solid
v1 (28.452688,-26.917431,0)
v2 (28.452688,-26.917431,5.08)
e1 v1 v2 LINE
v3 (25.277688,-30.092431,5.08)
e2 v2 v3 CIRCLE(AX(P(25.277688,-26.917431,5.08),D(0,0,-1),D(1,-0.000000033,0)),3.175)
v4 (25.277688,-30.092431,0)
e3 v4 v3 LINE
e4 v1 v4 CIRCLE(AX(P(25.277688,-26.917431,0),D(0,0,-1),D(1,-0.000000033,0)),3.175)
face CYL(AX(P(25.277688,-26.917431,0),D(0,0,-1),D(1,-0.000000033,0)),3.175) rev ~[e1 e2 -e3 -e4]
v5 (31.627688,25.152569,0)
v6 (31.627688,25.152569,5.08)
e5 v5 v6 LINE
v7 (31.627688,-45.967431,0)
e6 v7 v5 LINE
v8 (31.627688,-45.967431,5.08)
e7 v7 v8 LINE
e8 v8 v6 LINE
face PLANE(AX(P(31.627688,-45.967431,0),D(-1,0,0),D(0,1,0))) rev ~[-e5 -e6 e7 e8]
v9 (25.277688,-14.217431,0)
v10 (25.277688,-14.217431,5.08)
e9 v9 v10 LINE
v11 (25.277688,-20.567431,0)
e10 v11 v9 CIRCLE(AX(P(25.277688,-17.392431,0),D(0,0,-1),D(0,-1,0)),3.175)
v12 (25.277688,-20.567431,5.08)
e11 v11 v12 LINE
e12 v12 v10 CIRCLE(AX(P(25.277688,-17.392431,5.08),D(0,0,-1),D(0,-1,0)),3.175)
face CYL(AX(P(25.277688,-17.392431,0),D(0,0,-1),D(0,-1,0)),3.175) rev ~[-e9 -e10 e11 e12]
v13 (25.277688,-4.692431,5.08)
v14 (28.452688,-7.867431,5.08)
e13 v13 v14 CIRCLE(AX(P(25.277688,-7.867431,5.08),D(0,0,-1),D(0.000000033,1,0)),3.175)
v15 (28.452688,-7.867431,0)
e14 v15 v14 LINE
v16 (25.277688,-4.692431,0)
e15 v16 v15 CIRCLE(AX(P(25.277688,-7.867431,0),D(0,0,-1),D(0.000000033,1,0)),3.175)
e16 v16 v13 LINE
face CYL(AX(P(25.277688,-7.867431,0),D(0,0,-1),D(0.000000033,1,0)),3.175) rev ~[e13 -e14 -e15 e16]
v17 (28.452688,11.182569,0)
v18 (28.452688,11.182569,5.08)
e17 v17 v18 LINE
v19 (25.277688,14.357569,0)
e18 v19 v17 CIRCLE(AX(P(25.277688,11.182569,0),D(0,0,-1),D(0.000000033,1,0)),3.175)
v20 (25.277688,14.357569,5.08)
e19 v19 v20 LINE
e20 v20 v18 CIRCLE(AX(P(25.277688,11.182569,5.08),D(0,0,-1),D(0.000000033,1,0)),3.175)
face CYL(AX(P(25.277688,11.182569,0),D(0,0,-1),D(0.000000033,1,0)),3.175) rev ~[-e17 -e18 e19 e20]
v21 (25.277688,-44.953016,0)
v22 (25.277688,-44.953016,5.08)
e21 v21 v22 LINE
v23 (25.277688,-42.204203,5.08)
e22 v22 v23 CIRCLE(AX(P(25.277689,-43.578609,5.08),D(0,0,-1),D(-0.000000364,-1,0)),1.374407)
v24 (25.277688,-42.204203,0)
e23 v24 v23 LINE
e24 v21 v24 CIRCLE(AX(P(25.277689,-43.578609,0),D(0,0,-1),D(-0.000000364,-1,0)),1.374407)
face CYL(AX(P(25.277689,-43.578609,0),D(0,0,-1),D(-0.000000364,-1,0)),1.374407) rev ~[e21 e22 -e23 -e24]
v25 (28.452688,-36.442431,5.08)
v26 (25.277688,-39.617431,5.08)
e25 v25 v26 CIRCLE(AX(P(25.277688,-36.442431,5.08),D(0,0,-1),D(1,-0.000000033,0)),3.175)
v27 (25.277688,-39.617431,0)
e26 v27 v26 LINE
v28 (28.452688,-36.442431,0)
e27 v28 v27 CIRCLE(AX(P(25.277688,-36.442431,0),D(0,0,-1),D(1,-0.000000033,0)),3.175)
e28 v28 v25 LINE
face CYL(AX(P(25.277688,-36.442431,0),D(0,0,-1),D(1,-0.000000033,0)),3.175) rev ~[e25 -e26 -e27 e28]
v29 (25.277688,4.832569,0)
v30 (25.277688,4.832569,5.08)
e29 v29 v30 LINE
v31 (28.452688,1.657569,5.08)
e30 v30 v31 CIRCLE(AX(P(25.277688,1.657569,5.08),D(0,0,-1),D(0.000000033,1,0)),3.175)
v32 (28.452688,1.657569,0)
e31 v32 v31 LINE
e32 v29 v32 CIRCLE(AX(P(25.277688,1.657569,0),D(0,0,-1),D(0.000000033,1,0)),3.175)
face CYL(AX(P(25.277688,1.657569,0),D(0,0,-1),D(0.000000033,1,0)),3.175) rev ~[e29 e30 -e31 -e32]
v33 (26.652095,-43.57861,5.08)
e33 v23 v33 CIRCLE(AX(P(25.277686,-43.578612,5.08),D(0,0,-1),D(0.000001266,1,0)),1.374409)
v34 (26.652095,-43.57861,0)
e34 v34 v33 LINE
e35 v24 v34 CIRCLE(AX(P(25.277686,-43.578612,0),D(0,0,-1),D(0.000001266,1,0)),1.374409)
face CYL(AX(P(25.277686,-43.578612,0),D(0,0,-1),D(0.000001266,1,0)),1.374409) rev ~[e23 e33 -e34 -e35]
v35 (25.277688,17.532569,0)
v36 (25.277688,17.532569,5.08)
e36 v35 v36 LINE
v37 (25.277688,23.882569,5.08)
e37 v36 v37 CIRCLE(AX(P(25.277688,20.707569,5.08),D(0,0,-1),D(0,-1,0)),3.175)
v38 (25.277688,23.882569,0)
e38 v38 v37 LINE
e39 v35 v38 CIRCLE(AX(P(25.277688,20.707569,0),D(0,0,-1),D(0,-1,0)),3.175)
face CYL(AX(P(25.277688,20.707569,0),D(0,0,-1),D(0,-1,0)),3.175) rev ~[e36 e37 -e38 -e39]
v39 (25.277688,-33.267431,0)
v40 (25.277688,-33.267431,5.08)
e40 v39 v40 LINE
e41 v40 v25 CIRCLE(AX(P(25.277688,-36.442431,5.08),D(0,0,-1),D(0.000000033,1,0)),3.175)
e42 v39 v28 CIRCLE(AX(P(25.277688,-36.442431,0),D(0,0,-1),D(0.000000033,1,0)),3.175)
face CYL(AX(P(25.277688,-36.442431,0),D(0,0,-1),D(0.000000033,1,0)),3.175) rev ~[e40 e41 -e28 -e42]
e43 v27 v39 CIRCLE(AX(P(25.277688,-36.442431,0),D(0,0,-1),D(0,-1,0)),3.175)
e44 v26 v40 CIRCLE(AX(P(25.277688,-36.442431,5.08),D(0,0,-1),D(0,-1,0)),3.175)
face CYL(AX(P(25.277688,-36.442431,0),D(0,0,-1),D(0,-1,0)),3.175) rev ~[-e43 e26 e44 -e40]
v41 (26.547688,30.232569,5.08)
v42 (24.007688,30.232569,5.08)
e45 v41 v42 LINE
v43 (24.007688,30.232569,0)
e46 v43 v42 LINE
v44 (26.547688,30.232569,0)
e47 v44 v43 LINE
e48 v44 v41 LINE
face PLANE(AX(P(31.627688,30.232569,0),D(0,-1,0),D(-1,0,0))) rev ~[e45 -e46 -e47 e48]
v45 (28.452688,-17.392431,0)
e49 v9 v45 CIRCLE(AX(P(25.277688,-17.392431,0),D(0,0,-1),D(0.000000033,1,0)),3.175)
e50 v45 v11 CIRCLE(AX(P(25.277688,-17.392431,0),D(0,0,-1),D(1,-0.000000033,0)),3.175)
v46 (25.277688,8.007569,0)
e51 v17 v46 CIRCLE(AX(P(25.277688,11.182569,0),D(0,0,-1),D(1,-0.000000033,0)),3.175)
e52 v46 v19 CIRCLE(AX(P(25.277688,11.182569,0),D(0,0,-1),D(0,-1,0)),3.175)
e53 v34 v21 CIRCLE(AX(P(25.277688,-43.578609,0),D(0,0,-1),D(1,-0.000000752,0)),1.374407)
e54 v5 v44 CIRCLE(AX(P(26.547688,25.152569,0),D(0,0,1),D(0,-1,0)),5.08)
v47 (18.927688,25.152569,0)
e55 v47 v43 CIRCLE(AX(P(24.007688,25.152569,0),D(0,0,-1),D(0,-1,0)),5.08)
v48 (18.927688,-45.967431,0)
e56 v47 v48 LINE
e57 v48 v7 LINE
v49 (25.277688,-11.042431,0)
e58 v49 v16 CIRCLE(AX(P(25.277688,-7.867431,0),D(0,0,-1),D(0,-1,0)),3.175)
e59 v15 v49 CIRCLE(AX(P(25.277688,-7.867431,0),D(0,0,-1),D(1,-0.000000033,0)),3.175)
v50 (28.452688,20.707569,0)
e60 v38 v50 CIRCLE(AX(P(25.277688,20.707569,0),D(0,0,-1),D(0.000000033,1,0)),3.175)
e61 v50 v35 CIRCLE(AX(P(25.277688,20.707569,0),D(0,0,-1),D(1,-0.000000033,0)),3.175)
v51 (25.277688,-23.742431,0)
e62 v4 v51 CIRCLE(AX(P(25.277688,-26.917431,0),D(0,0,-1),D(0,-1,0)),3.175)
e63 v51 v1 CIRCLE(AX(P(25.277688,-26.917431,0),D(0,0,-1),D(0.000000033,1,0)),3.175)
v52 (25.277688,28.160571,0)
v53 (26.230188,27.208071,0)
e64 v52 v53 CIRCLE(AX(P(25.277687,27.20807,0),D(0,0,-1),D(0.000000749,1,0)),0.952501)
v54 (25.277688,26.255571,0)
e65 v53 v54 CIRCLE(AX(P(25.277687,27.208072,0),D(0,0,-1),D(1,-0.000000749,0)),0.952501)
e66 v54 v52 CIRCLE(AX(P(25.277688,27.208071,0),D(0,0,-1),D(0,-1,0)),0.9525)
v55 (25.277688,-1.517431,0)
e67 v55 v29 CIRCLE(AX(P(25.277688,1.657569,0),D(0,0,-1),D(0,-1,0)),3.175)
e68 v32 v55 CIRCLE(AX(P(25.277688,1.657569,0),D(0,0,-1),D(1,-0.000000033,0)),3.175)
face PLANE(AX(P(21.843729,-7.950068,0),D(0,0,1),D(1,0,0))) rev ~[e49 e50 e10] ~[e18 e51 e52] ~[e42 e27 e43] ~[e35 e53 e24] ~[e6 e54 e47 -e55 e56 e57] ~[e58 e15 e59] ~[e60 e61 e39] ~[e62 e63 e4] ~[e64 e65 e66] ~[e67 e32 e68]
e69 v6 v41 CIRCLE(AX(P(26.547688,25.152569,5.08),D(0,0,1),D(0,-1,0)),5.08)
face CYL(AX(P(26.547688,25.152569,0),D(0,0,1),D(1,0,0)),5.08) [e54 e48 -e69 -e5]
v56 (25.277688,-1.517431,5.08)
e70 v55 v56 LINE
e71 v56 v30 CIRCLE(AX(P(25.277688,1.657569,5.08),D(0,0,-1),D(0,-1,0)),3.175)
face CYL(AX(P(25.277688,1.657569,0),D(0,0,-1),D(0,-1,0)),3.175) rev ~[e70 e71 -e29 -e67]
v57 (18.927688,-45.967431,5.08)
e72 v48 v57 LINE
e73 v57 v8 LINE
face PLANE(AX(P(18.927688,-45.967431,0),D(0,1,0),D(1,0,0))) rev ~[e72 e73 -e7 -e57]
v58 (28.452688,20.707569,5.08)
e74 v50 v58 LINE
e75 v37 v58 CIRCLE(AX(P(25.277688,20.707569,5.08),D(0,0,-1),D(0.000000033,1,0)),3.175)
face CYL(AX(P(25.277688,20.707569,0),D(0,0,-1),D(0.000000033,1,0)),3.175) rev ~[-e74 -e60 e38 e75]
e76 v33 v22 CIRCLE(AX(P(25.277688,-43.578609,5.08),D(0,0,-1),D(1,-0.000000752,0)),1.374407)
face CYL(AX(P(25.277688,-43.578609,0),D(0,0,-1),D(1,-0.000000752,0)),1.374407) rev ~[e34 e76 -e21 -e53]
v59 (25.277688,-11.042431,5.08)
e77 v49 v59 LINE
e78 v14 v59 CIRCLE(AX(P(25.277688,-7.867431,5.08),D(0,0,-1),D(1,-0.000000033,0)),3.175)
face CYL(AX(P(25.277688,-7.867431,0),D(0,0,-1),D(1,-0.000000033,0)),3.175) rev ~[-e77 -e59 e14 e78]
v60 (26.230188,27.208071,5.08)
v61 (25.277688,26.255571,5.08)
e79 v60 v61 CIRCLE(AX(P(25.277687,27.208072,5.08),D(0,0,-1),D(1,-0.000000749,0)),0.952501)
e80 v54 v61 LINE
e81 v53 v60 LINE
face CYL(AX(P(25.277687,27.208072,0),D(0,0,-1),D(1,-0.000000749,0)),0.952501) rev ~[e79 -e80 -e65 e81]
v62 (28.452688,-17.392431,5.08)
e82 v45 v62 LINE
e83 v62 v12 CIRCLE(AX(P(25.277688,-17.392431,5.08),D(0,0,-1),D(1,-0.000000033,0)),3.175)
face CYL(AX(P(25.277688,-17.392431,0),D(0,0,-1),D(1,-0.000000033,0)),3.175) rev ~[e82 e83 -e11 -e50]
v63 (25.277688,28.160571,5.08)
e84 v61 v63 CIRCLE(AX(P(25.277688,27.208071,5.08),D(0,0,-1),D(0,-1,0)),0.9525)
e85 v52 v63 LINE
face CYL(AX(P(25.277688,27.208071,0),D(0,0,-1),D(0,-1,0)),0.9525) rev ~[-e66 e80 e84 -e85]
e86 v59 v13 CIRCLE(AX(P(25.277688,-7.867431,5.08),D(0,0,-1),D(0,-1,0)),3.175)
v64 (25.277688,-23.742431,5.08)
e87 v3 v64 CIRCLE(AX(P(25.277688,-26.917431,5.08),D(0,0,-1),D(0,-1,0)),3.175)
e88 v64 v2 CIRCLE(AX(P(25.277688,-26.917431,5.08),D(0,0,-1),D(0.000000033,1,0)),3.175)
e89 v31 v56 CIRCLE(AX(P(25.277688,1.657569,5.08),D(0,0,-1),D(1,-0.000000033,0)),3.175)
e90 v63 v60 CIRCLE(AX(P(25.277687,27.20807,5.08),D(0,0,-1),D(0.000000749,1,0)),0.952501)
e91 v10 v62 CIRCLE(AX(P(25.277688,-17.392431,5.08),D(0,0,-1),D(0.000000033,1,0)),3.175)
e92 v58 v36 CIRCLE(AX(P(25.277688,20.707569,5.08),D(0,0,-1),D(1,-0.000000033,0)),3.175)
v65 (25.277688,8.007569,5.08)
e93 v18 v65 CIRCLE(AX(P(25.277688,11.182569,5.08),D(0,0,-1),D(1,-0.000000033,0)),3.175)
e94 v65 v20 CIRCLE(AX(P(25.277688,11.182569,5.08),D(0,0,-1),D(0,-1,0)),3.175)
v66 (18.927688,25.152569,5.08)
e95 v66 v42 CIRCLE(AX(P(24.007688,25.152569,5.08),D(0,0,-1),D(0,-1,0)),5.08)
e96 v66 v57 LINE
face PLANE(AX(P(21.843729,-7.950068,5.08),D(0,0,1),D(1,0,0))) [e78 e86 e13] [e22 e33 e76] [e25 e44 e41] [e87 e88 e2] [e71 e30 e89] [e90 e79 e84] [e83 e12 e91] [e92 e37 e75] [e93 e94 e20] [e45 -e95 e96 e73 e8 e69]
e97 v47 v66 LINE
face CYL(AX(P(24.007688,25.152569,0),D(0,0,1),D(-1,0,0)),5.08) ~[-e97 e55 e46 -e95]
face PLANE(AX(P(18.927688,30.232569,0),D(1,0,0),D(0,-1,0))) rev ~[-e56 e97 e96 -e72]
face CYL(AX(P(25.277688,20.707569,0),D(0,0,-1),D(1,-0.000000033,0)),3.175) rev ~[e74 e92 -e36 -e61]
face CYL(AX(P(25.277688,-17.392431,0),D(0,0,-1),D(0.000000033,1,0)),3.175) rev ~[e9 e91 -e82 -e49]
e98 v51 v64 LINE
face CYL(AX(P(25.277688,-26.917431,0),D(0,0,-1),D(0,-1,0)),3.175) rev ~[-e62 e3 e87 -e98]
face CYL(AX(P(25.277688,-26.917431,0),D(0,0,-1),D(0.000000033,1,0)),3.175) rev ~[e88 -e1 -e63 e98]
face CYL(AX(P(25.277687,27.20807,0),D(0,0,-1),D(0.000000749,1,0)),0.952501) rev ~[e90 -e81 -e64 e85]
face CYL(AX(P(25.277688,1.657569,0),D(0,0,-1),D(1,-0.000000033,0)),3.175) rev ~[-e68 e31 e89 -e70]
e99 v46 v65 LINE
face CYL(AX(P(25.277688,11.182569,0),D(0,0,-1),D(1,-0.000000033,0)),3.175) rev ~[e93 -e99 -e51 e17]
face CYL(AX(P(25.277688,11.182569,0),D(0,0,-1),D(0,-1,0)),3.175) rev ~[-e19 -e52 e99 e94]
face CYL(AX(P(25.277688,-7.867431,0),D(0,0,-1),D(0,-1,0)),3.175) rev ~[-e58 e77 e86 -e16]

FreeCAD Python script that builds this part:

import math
import FreeCAD as App
import Part
import Sketcher
from FreeCAD import Vector
Q = App.Units.Quantity


def edges_at(feature, points):
    """Names of the edges that pass closest to the given points."""
    edges = feature.Shape.Edges
    near = lambda p: min(range(len(edges)), key=lambda i: edges[i].distToShape(Part.Vertex(*p))[0])
    return sorted({f"Edge{near(p) + 1}" for p in points})

doc = App.newDocument("Part")
params = doc.addObject("Spreadsheet::Sheet", "Params")
for row, (alias, value) in enumerate([
    ("sketch1_height", "3 in"),
    ("sketch1_width", "0.5 in"),
    ("sketch1_radius", "0.125 in"),
    ("pad1_length", "0.2 in"),
    ("fillet_radius", "0.2 in"),
], start=1):
    params.set(f"A{row}", alias)
    params.set(f"B{row}", "=" + value)
    params.setAlias(f"B{row}", alias)

body = doc.addObject("PartDesign::Body", "Body")

# Sketch on XY plane
sketch1 = body.newObject("Sketcher::SketchObject", "Sketch")
sketch1.AttachmentSupport = (doc.getObject("XY_Plane"), [""])
sketch1.MapMode = "FlatFace"
sketch1.addGeometry(Part.LineSegment(Vector(18.927688, 30.232569, 0), Vector(18.927688, -45.967431, 0)), False)
sketch1.addGeometry(Part.LineSegment(Vector(18.927688, -45.967431, 0), Vector(31.627688, -45.967431, 0)), False)
sketch1.addGeometry(Part.LineSegment(Vector(31.627688, -45.967431, 0), Vector(31.627688, 30.232569, 0)), False)
sketch1.addGeometry(Part.LineSegment(Vector(31.627688, 30.232569, 0), Vector(18.927688, 30.232569, 0)), False)
sketch1.addGeometry(Part.ArcOfCircle(Part.Circle(Vector(25.277689, -43.578609, 0), Vector(0, 0, 1), 1.374407), math.radians(90.000021), math.radians(269.999979)), False)
sketch1.addGeometry(Part.ArcOfCircle(Part.Circle(Vector(25.277686, -43.578612, 0), Vector(0, 0, 1), 1.374409), math.radians(0.000073), math.radians(89.999927)), False)
sketch1.addGeometry(Part.ArcOfCircle(Part.Circle(Vector(25.277688, -43.578609, 0), Vector(0, 0, 1), 1.374407), math.radians(-89.999999), math.radians(-0.000043)), False)
sketch1.addGeometry(Part.ArcOfCircle(Part.Circle(Vector(25.277688, -36.442431, 0), Vector(0, 0, 1), 3.175), math.radians(90), math.radians(270)), False)
sketch1.addGeometry(Part.ArcOfCircle(Part.Circle(Vector(25.277688, -36.442431, 0), Vector(0, 0, 1), 3.175), math.radians(0.000002), math.radians(89.999998)), False)
sketch1.addGeometry(Part.ArcOfCircle(Part.Circle(Vector(25.277688, -36.442431, 0), Vector(0, 0, 1), 3.175), math.radians(-89.999998), math.radians(-0.000002)), False)
sketch1.addGeometry(Part.ArcOfCircle(Part.Circle(Vector(25.277688, -26.917431, 0), Vector(0, 0, 1), 3.175), math.radians(90), math.radians(270)), False)
sketch1.addGeometry(Part.ArcOfCircle(Part.Circle(Vector(25.277688, -26.917431, 0), Vector(0, 0, 1), 3.175), math.radians(0.000002), math.radians(89.999998)), False)
sketch1.addGeometry(Part.ArcOfCircle(Part.Circle(Vector(25.277688, -26.917431, 0), Vector(0, 0, 1), 3.175), math.radians(-89.999998), math.radians(-0.000002)), False)
sketch1.addGeometry(Part.ArcOfCircle(Part.Circle(Vector(25.277688, -17.392431, 0), Vector(0, 0, 1), 3.175), math.radians(90), math.radians(270)), False)
sketch1.addGeometry(Part.ArcOfCircle(Part.Circle(Vector(25.277688, -17.392431, 0), Vector(0, 0, 1), 3.175), math.radians(0.000002), math.radians(89.999998)), False)
sketch1.addGeometry(Part.ArcOfCircle(Part.Circle(Vector(25.277688, -17.392431, 0), Vector(0, 0, 1), 3.175), math.radians(-89.999998), math.radians(-0.000002)), False)
sketch1.addGeometry(Part.ArcOfCircle(Part.Circle(Vector(25.277688, -7.867431, 0), Vector(0, 0, 1), 3.175), math.radians(90), math.radians(270)), False)
sketch1.addGeometry(Part.ArcOfCircle(Part.Circle(Vector(25.277688, -7.867431, 0), Vector(0, 0, 1), 3.175), math.radians(0.000002), math.radians(89.999998)), False)
sketch1.addGeometry(Part.ArcOfCircle(Part.Circle(Vector(25.277688, -7.867431, 0), Vector(0, 0, 1), 3.175), math.radians(-89.999998), math.radians(-0.000002)), False)
sketch1.addGeometry(Part.ArcOfCircle(Part.Circle(Vector(25.277688, 1.657569, 0), Vector(0, 0, 1), 3.175), math.radians(90), math.radians(270)), False)
sketch1.addGeometry(Part.ArcOfCircle(Part.Circle(Vector(25.277688, 1.657569, 0), Vector(0, 0, 1), 3.175), math.radians(0.000002), math.radians(89.999998)), False)
sketch1.addGeometry(Part.ArcOfCircle(Part.Circle(Vector(25.277688, 1.657569, 0), Vector(0, 0, 1), 3.175), math.radians(-89.999998), math.radians(-0.000002)), False)
sketch1.addGeometry(Part.ArcOfCircle(Part.Circle(Vector(25.277688, 11.182569, 0), Vector(0, 0, 1), 3.175), math.radians(90), math.radians(270)), False)
sketch1.addGeometry(Part.ArcOfCircle(Part.Circle(Vector(25.277688, 11.182569, 0), Vector(0, 0, 1), 3.175), math.radians(0.000002), math.radians(89.999998)), False)
sketch1.addGeometry(Part.ArcOfCircle(Part.Circle(Vector(25.277688, 11.182569, 0), Vector(0, 0, 1), 3.175), math.radians(-89.999998), math.radians(-0.000002)), False)
sketch1.addGeometry(Part.ArcOfCircle(Part.Circle(Vector(25.277688, 20.707569, 0), Vector(0, 0, 1), 3.175), math.radians(90), math.radians(270)), False)
sketch1.addGeometry(Part.ArcOfCircle(Part.Circle(Vector(25.277688, 20.707569, 0), Vector(0, 0, 1), 3.175), math.radians(0.000002), math.radians(89.999998)), False)
sketch1.addGeometry(Part.ArcOfCircle(Part.Circle(Vector(25.277688, 20.707569, 0), Vector(0, 0, 1), 3.175), math.radians(-89.999998), math.radians(-0.000002)), False)
sketch1.addGeometry(Part.ArcOfCircle(Part.Circle(Vector(25.277688, 27.208071, 0), Vector(0, 0, 1), 0.9525), math.radians(90), math.radians(270)), False)
sketch1.addGeometry(Part.ArcOfCircle(Part.Circle(Vector(25.277687, 27.20807, 0), Vector(0, 0, 1), 0.952501), math.radians(0.000043), math.radians(89.999957)), False)
sketch1.addGeometry(Part.ArcOfCircle(Part.Circle(Vector(25.277687, 27.208072, 0), Vector(0, 0, 1), 0.952501), math.radians(-89.999957), math.radians(-0.000043)), False)
sketch1.addConstraint(Sketcher.Constraint("Coincident", 0, 2, 1, 1))
sketch1.addConstraint(Sketcher.Constraint("Coincident", 1, 2, 2, 1))
sketch1.addConstraint(Sketcher.Constraint("Coincident", 2, 2, 3, 1))
sketch1.addConstraint(Sketcher.Constraint("Coincident", 3, 2, 0, 1))
sketch1.addConstraint(Sketcher.Constraint("Tangent", 4, 1, 5, 2))
sketch1.addConstraint(Sketcher.Constraint("Coincident", 5, 1, 6, 2))
sketch1.addConstraint(Sketcher.Constraint("Tangent", 6, 1, 4, 2))
sketch1.addConstraint(Sketcher.Constraint("Tangent", 7, 1, 8, 2))
sketch1.addConstraint(Sketcher.Constraint("Tangent", 8, 1, 9, 2))
sketch1.addConstraint(Sketcher.Constraint("Tangent", 9, 1, 7, 2))
sketch1.addConstraint(Sketcher.Constraint("Tangent", 10, 1, 11, 2))
sketch1.addConstraint(Sketcher.Constraint("Tangent", 11, 1, 12, 2))
sketch1.addConstraint(Sketcher.Constraint("Tangent", 12, 1, 10, 2))
sketch1.addConstraint(Sketcher.Constraint("Tangent", 13, 1, 14, 2))
sketch1.addConstraint(Sketcher.Constraint("Tangent", 14, 1, 15, 2))
sketch1.addConstraint(Sketcher.Constraint("Tangent", 15, 1, 13, 2))
sketch1.addConstraint(Sketcher.Constraint("Tangent", 16, 1, 17, 2))
sketch1.addConstraint(Sketcher.Constraint("Tangent", 17, 1, 18, 2))
sketch1.addConstraint(Sketcher.Constraint("Tangent", 18, 1, 16, 2))
sketch1.addConstraint(Sketcher.Constraint("Tangent", 19, 1, 20, 2))
sketch1.addConstraint(Sketcher.Constraint("Tangent", 20, 1, 21, 2))
sketch1.addConstraint(Sketcher.Constraint("Tangent", 21, 1, 19, 2))
sketch1.addConstraint(Sketcher.Constraint("Tangent", 22, 1, 23, 2))
sketch1.addConstraint(Sketcher.Constraint("Tangent", 23, 1, 24, 2))
sketch1.addConstraint(Sketcher.Constraint("Tangent", 24, 1, 22, 2))
sketch1.addConstraint(Sketcher.Constraint("Tangent", 25, 1, 26, 2))
sketch1.addConstraint(Sketcher.Constraint("Tangent", 26, 1, 27, 2))
sketch1.addConstraint(Sketcher.Constraint("Tangent", 27, 1, 25, 2))
sketch1.addConstraint(Sketcher.Constraint("Tangent", 28, 1, 29, 2))
sketch1.addConstraint(Sketcher.Constraint("Tangent", 29, 1, 30, 2))
sketch1.addConstraint(Sketcher.Constraint("Tangent", 30, 1, 28, 2))
sketch1.addConstraint(Sketcher.Constraint("Vertical", 0))
sketch1.addConstraint(Sketcher.Constraint("Horizontal", 1))
sketch1.addConstraint(Sketcher.Constraint("Vertical", 2))
sketch1.addConstraint(Sketcher.Constraint("Horizontal", 3))
sketch1.addConstraint(Sketcher.Constraint("Equal", 9, 10))
sketch1.addConstraint(Sketcher.Constraint("Equal", 12, 13))
sketch1.addConstraint(Sketcher.Constraint("Equal", 15, 16))
sketch1.addConstraint(Sketcher.Constraint("Equal", 18, 19))
sketch1.addConstraint(Sketcher.Constraint("Equal", 21, 22))
sketch1.addConstraint(Sketcher.Constraint("Equal", 24, 25))
sketch1.addConstraint(Sketcher.Constraint("Horizontal", 6, 3, 5, 1))
sketch1.addConstraint(Sketcher.Constraint("Horizontal", 9, 3, 8, 1))
sketch1.addConstraint(Sketcher.Constraint("Horizontal", 12, 3, 11, 1))
sketch1.addConstraint(Sketcher.Constraint("Horizontal", 15, 3, 14, 1))
sketch1.addConstraint(Sketcher.Constraint("Horizontal", 18, 3, 17, 1))
sketch1.addConstraint(Sketcher.Constraint("Horizontal", 21, 3, 20, 1))
sketch1.addConstraint(Sketcher.Constraint("Horizontal", 24, 3, 23, 1))
sketch1.addConstraint(Sketcher.Constraint("Horizontal", 27, 3, 26, 1))
sketch1.addConstraint(Sketcher.Constraint("Horizontal", 30, 3, 29, 1))
sketch1.addConstraint(Sketcher.Constraint("Vertical", 6, 3, 7, 3))
sketch1.addConstraint(Sketcher.Constraint("Vertical", 9, 3, 10, 3))
sketch1.addConstraint(Sketcher.Constraint("Vertical", 12, 3, 13, 3))
sketch1.addConstraint(Sketcher.Constraint("Vertical", 15, 3, 16, 3))
sketch1.addConstraint(Sketcher.Constraint("Vertical", 18, 3, 19, 3))
sketch1.addConstraint(Sketcher.Constraint("Vertical", 21, 3, 22, 3))
sketch1.addConstraint(Sketcher.Constraint("Vertical", 24, 3, 25, 3))
sketch1.addConstraint(Sketcher.Constraint("Vertical", 27, 3, 28, 3))
sketch1.addConstraint(Sketcher.Constraint("Vertical", 30, 3, 4, 1))
sketch1.addConstraint(Sketcher.Constraint("Vertical", 4, 1, 6, 1))
sketch1.addConstraint(Sketcher.Constraint("Vertical", 6, 1, 7, 1))
sketch1.addConstraint(Sketcher.Constraint("Vertical", 7, 1, 9, 1))
sketch1.addConstraint(Sketcher.Constraint("Vertical", 9, 1, 10, 1))
sketch1.addConstraint(Sketcher.Constraint("Vertical", 10, 1, 12, 1))
sketch1.addConstraint(Sketcher.Constraint("Vertical", 12, 1, 13, 1))
sketch1.addConstraint(Sketcher.Constraint("Vertical", 13, 1, 15, 1))
sketch1.addConstraint(Sketcher.Constraint("Vertical", 15, 1, 16, 1))
sketch1.addConstraint(Sketcher.Constraint("Vertical", 16, 1, 18, 1))
sketch1.addConstraint(Sketcher.Constraint("Vertical", 18, 1, 19, 1))
sketch1.addConstraint(Sketcher.Constraint("Vertical", 19, 1, 21, 1))
sketch1.addConstraint(Sketcher.Constraint("Vertical", 21, 1, 22, 1))
sketch1.addConstraint(Sketcher.Constraint("Vertical", 22, 1, 24, 1))
sketch1.addConstraint(Sketcher.Constraint("Vertical", 24, 1, 25, 1))
sketch1.addConstraint(Sketcher.Constraint("Vertical", 25, 1, 27, 1))
sketch1.addConstraint(Sketcher.Constraint("Vertical", 27, 1, 28, 1))
sketch1.addConstraint(Sketcher.Constraint("Vertical", 28, 1, 30, 1))
sketch1.addConstraint(Sketcher.Constraint("DistanceY", 0, 2, 0, 1, Q("3 in")))
sketch1.addConstraint(Sketcher.Constraint("DistanceX", 1, 1, 1, 2, Q("0.5 in")))
sketch1.addConstraint(Sketcher.Constraint("Radius", 7, Q("0.125 in")))
sketch1.addConstraint(Sketcher.Constraint("Radius", 28, Q("0.0375 in")))
sketch1.addConstraint(Sketcher.Constraint("DistanceY", 9, 3, 13, 3, Q("0.75 in")))
sketch1.addConstraint(Sketcher.Constraint("DistanceY", 12, 3, 16, 3, Q("0.75 in")))
sketch1.addConstraint(Sketcher.Constraint("DistanceY", 15, 3, 19, 3, Q("0.75 in")))
sketch1.addConstraint(Sketcher.Constraint("DistanceY", 18, 3, 22, 3, Q("0.75 in")))
sketch1.addConstraint(Sketcher.Constraint("DistanceY", 21, 3, 25, 3, Q("0.75 in")))
sketch1.addConstraint(Sketcher.Constraint("DistanceX", 0, 2, 5, 3, Q("0.2499999 in")))
sketch1.addConstraint(Sketcher.Constraint("DistanceY", 7, 1, 11, 3, Q("0.25 in")))
sketch1.addConstraint(Sketcher.Constraint("Radius", 5, Q("1.374409 mm")))
sketch1.addConstraint(Sketcher.Constraint("DistanceY", 0, 2, 8, 3, Q("0.375 in")))
sketch1.addConstraint(Sketcher.Constraint("Radius", 4, Q("1.374407 mm")))
sketch1.addConstraint(Sketcher.Constraint("DistanceY", 27, 3, 28, 3, Q("6.500502 mm")))
sketch1.addConstraint(Sketcher.Constraint("DistanceX", -1, 1, 4, 3, Q("25.277689 mm")))
sketch1.addConstraint(Sketcher.Constraint("DistanceY", 4, 3, -1, 1, Q("43.578609 mm")))
sketch1.addConstraint(Sketcher.Constraint("DistanceY", 7, 3, -1, 1, Q("36.442431 mm")))
sketch1.setExpression("Constraints[76]", "Params.sketch1_height")
sketch1.setExpression("Constraints[77]", "Params.sketch1_width")
sketch1.setExpression("Constraints[78]", "Params.sketch1_radius")
pad1 = body.newObject("PartDesign::Pad", "Pad")
pad1.Profile = sketch1
pad1.setExpression("Length", "Params.pad1_length")
doc.recompute()

fillet = body.newObject("PartDesign::Fillet", "Fillet")
fillet.Base = (pad1, edges_at(pad1, [(31.628, 30.233, 2.54), (18.928, 30.233, 2.54)]))
fillet.setExpression("Radius", "Params.fillet_radius")

doc.recompute()
